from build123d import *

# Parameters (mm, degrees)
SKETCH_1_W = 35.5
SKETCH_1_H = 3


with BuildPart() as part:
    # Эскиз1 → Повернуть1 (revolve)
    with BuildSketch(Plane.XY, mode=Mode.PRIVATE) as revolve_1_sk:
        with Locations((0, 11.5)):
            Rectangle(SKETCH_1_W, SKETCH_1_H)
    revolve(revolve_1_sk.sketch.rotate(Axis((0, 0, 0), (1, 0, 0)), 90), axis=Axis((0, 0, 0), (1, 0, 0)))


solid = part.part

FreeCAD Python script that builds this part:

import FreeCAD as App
import Part
import Sketcher

V = App.Vector


def add_polygon(sketch, points):
    """Adds a closed chain of lines whose ends are joined by coincident constraints."""
    first, n = sketch.GeometryCount, len(points)
    for a, b in zip(points, points[1:] + points[:1]):
        sketch.addGeometry(Part.LineSegment(App.Vector(*a, 0), App.Vector(*b, 0)), False)
    for i in range(n):
        sketch.addConstraint(Sketcher.Constraint("Coincident", first + i, 2, first + (i + 1) % n, 1))

doc = App.newDocument("Part")
body = doc.addObject("PartDesign::Body", "Body")

# Sketch on XY plane
sketch1 = body.newObject("Sketcher::SketchObject", "Sketch")
sketch1.AttachmentSupport = (doc.getObject("XY_Plane"), [""])
sketch1.MapMode = "FlatFace"
add_polygon(sketch1, [(-17.75, 13), (-17.75, 10), (17.75, 10), (17.75, 13)])  # lines 0-3
sketch1.addConstraint([
    Sketcher.Constraint("Vertical", 0),
    Sketcher.Constraint("Horizontal", 1),
    Sketcher.Constraint("Vertical", 2),
    Sketcher.Constraint("Horizontal", 3),
    Sketcher.Constraint("DistanceY", 0, 2, 0, 1, 3.0),
    Sketcher.Constraint("DistanceX", 1, 1, 1, 2, 35.5),
    Sketcher.Constraint("DistanceY", -1, 1, 0, 2, 10.0),
    Sketcher.Constraint("DistanceX", 0, 2, -1, 1, 17.75),
])
revolution = body.newObject("PartDesign::Revolution", "Revolution")
revolution.Profile = sketch1
revolution.ReferenceAxis = (sketch1, ["H_Axis"])
revolution.Angle = 360

doc.recompute()
